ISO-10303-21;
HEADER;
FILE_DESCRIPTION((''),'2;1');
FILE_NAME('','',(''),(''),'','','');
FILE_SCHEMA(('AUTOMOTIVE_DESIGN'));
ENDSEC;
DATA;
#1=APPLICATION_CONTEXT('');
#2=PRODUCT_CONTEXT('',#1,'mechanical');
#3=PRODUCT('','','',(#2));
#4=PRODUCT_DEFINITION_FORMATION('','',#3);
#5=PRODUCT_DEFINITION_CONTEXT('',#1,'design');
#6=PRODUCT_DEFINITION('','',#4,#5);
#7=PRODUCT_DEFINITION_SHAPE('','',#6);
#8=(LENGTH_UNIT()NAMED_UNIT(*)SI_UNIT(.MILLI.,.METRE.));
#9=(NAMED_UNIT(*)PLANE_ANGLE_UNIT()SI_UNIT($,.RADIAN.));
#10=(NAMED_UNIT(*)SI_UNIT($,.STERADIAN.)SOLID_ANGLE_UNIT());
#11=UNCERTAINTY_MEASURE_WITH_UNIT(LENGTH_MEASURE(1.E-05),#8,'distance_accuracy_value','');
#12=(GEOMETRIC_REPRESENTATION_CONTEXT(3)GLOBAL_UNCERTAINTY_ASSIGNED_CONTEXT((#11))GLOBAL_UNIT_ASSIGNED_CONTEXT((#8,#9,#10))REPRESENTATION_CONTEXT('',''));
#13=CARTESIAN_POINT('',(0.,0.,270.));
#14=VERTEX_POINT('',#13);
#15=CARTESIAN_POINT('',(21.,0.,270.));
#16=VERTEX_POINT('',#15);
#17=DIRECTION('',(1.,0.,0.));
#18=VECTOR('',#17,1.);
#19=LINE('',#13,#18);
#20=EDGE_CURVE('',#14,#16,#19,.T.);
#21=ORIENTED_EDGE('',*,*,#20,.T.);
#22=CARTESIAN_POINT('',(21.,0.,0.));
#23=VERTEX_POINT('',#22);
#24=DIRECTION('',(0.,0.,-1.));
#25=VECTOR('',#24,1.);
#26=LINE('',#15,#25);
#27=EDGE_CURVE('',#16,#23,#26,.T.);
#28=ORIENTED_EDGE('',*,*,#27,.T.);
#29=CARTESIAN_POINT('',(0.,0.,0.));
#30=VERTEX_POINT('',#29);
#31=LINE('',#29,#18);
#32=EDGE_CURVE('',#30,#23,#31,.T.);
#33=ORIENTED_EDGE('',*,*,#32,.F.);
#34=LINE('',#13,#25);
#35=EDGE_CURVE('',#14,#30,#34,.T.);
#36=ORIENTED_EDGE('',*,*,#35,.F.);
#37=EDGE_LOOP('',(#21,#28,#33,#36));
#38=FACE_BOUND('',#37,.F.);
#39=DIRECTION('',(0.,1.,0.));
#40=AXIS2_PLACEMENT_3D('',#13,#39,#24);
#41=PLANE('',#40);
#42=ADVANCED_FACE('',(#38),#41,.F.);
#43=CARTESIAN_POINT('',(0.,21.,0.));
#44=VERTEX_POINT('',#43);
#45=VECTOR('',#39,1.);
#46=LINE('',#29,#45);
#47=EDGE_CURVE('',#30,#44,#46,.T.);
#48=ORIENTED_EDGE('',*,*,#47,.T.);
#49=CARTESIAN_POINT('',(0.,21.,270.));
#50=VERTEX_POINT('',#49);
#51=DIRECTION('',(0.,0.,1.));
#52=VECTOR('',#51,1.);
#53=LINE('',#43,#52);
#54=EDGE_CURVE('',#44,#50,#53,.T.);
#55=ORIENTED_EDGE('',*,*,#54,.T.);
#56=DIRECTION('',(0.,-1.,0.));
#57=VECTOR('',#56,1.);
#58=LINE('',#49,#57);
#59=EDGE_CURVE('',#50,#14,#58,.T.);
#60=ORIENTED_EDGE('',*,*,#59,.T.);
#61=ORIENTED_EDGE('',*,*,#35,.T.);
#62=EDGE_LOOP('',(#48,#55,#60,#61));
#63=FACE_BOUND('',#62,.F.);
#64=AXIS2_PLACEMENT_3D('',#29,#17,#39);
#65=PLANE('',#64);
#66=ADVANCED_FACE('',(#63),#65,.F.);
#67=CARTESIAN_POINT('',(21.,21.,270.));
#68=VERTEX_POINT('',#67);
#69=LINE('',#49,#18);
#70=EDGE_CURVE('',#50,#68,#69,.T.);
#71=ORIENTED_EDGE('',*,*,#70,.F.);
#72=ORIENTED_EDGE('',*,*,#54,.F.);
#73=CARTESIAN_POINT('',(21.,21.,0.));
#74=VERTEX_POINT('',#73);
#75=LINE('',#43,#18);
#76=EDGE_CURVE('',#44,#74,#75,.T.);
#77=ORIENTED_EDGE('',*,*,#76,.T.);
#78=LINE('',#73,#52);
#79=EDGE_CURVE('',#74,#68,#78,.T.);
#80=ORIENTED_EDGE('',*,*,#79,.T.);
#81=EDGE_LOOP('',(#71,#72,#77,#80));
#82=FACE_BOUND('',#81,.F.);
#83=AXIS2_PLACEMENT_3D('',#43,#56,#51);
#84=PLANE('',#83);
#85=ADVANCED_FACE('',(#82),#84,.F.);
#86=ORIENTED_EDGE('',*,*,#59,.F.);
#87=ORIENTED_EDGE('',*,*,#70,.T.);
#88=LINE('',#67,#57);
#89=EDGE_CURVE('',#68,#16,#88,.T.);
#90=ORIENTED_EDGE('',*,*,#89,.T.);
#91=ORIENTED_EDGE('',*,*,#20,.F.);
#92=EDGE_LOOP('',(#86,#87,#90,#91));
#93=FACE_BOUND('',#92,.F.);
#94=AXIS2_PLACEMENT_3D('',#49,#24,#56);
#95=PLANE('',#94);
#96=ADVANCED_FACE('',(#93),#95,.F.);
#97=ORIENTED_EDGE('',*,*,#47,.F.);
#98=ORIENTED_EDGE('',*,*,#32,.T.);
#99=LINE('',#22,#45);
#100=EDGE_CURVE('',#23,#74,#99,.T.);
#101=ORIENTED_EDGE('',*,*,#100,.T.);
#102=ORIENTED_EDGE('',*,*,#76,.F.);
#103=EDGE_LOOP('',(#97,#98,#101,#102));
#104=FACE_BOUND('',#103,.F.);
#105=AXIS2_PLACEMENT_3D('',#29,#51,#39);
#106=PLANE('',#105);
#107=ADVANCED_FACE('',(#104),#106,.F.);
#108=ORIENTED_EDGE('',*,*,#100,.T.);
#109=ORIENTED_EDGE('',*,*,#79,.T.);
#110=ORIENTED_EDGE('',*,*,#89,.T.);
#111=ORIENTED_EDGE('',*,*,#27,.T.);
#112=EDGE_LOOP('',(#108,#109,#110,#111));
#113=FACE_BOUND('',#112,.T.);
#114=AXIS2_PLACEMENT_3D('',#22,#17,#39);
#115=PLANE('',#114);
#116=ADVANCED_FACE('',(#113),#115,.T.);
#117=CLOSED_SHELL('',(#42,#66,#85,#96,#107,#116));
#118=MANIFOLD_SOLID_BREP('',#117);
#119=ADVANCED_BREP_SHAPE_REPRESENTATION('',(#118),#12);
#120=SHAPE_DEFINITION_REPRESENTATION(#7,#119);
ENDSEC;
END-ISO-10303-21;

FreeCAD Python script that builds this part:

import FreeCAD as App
import Part
import Sketcher
from FreeCAD import Vector
Q = App.Units.Quantity

doc = App.newDocument("Part")
body = doc.addObject("PartDesign::Body", "Body")

sketch1 = body.newObject("Sketcher::SketchObject", "Sketch")
sketch1.AttachmentSupport = (doc.getObject("YZ_Plane"), [""])
sketch1.MapMode = "FlatFace"
sketch1.addGeometry(Part.LineSegment(Vector(0, 270, 0), Vector(0, 0, 0)), False)
sketch1.addGeometry(Part.LineSegment(Vector(0, 0, 0), Vector(21, 0, 0)), False)
sketch1.addGeometry(Part.LineSegment(Vector(21, 0, 0), Vector(21, 270, 0)), False)
sketch1.addGeometry(Part.LineSegment(Vector(21, 270, 0), Vector(0, 270, 0)), False)
sketch1.addConstraint(Sketcher.Constraint("Coincident", 0, 2, 1, 1))
sketch1.addConstraint(Sketcher.Constraint("Coincident", 1, 2, 2, 1))
sketch1.addConstraint(Sketcher.Constraint("Coincident", 2, 2, 3, 1))
sketch1.addConstraint(Sketcher.Constraint("Coincident", 3, 2, 0, 1))
sketch1.addConstraint(Sketcher.Constraint("Vertical", 0))
sketch1.addConstraint(Sketcher.Constraint("Horizontal", 1))
sketch1.addConstraint(Sketcher.Constraint("Vertical", 2))
sketch1.addConstraint(Sketcher.Constraint("Horizontal", 3))
sketch1.addConstraint(Sketcher.Constraint("Coincident", 0, 2, -1, 1))
sketch1.addConstraint(Sketcher.Constraint("DistanceX", 1, 1, 1, 2, Q("21 mm")))
sketch1.addConstraint(Sketcher.Constraint("DistanceY", 0, 2, 0, 1, Q("270 mm")))
pad1 = body.newObject("PartDesign::Pad", "Pad")
pad1.Profile = sketch1
pad1.Length = 21

doc.recompute()
